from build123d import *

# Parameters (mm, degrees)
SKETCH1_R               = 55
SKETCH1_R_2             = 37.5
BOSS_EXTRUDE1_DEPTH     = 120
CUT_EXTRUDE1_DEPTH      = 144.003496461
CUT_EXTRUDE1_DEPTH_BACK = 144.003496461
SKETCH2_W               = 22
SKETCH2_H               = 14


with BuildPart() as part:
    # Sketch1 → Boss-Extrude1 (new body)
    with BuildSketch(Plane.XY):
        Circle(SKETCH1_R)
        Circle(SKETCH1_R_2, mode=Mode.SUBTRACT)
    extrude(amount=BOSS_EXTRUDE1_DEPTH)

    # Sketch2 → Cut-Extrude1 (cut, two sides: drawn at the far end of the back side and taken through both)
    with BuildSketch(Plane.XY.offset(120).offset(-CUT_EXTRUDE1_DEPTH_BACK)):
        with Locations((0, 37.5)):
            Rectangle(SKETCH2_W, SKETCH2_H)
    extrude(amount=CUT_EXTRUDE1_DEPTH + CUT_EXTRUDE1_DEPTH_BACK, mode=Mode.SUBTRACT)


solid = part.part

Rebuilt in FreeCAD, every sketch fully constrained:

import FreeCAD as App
import Part
import Sketcher

V = App.Vector


def add_polygon(sketch, points):
    """Adds a closed chain of lines whose ends are joined by coincident constraints."""
    first, n = sketch.GeometryCount, len(points)
    for a, b in zip(points, points[1:] + points[:1]):
        sketch.addGeometry(Part.LineSegment(App.Vector(*a, 0), App.Vector(*b, 0)), False)
    for i in range(n):
        sketch.addConstraint(Sketcher.Constraint("Coincident", first + i, 2, first + (i + 1) % n, 1))

doc = App.newDocument("Part")
params = doc.addObject("Spreadsheet::Sheet", "Params")
for row, (alias, value) in enumerate([
    ("sketch1_diameter", "110 mm"),
    ("sketch1_diameter2", "75 mm"),
    ("pad1_length", "120 mm"),
    ("sketch2_width", "22 mm"),
    ("sketch2_height", "14 mm"),
], start=1):
    params.set(f"A{row}", alias)
    params.set(f"B{row}", "=" + value)
    params.setAlias(f"B{row}", alias)

body = doc.addObject("PartDesign::Body", "Body")

# Sketch on XY plane
sketch1 = doc.addObject("Sketcher::SketchObject", "Sketch")
body.addObject(sketch1)
sketch1.AttachmentSupport = (doc.XY_Plane, [""])
sketch1.MapMode = "FlatFace"
sketch1.addGeometry(Part.Circle(V(0, 0, 0), V(0, 0, 1), 55), False)
sketch1.addGeometry(Part.Circle(V(0, 0, 0), V(0, 0, 1), 37.5), False)
sketch1.addConstraint(Sketcher.Constraint("Coincident", 0, 3, -1, 1))
sketch1.addConstraint(Sketcher.Constraint("Coincident", 1, 3, -1, 1))
sketch1.addConstraint(Sketcher.Constraint("Diameter", 0, 110.0))
sketch1.addConstraint(Sketcher.Constraint("Diameter", 1, 75.0))
sketch1.setExpression("Constraints[2]", "Params.sketch1_diameter")
sketch1.setExpression("Constraints[3]", "Params.sketch1_diameter2")
pad1 = doc.addObject("PartDesign::Pad", "Pad")
body.addObject(pad1)
pad1.Profile = sketch1
pad1.setExpression("Length", "Params.pad1_length")

# Sketch on XY plane
sketch2 = doc.addObject("Sketcher::SketchObject", "Sketch001")
body.addObject(sketch2)
sketch2.AttachmentSupport = (doc.XY_Plane, [""])
sketch2.MapMode = "FlatFace"
sketch2.AttachmentOffset = App.Placement(V(0, 0, 120), App.Rotation())
add_polygon(sketch2, [(-11, 44.5), (-11, 30.5), (11, 30.5), (11, 44.5)])  # lines 0-3
sketch2.addConstraint(Sketcher.Constraint("Vertical", 0))
sketch2.addConstraint(Sketcher.Constraint("Horizontal", 1))
sketch2.addConstraint(Sketcher.Constraint("Vertical", 2))
sketch2.addConstraint(Sketcher.Constraint("Horizontal", 3))
sketch2.addConstraint(Sketcher.Constraint("DistanceX", 1, 1, 1, 2, 22.0))
sketch2.addConstraint(Sketcher.Constraint("DistanceY", 0, 2, 0, 1, 14.0))
sketch2.addConstraint(Sketcher.Constraint("DistanceX", 0, 2, -1, 1, 11.0))
sketch2.addConstraint(Sketcher.Constraint("DistanceY", -1, 1, 0, 2, 30.5))
sketch2.setExpression("Constraints[8]", "Params.sketch2_width")
sketch2.setExpression("Constraints[9]", "Params.sketch2_height")
pocket1 = doc.addObject("PartDesign::Pocket", "Pocket")
body.addObject(pocket1)
pocket1.Profile = sketch2
pocket1.Type = "ThroughAll"
pocket1.Midplane = True

doc.recompute()
